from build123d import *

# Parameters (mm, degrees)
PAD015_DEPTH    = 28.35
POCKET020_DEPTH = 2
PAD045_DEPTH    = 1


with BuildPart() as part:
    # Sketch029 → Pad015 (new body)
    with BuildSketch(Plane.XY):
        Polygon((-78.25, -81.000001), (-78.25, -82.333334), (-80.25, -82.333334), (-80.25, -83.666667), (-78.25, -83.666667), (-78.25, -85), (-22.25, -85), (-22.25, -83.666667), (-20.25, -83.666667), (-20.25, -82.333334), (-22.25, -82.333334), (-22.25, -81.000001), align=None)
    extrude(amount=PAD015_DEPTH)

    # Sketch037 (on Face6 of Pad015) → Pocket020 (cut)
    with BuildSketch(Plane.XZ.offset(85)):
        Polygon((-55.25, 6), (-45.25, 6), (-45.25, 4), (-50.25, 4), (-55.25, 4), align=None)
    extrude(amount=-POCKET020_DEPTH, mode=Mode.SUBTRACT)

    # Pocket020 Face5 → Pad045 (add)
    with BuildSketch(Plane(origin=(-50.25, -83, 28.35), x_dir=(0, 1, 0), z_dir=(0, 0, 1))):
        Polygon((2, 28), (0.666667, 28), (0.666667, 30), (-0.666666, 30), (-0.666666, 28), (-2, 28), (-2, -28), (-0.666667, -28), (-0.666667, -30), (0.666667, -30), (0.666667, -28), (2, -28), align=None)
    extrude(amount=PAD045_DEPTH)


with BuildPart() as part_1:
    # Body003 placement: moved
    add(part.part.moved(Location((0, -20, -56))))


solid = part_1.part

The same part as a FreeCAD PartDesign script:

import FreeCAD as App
import Part
import Sketcher

V = App.Vector
Q = App.Units.Quantity

doc = App.newDocument("Part")
body = doc.addObject("PartDesign::Body", "Body")

# Sketch on XY plane
sketch1 = body.newObject("Sketcher::SketchObject", "Sketch")
sketch1.AttachmentSupport = (doc.getObject("XY_Plane"), [""])
sketch1.MapMode = "FlatFace"
sketch1.addGeometry(Part.LineSegment(V(-78.25, -81.000001, 0), V(-78.25, -82.333334, 0)), False)
sketch1.addGeometry(Part.LineSegment(V(-78.25, -82.333334, 0), V(-80.25, -82.333334, 0)), False)
sketch1.addGeometry(Part.LineSegment(V(-80.25, -82.333334, 0), V(-80.25, -83.666667, 0)), False)
sketch1.addGeometry(Part.LineSegment(V(-80.25, -83.666667, 0), V(-78.25, -83.666667, 0)), False)
sketch1.addGeometry(Part.LineSegment(V(-78.25, -83.666667, 0), V(-78.25, -85, 0)), False)
sketch1.addGeometry(Part.LineSegment(V(-78.25, -85, 0), V(-22.25, -85, 0)), False)
sketch1.addGeometry(Part.LineSegment(V(-22.25, -85, 0), V(-22.25, -83.666667, 0)), False)
sketch1.addGeometry(Part.LineSegment(V(-22.25, -83.666667, 0), V(-20.25, -83.666667, 0)), False)
sketch1.addGeometry(Part.LineSegment(V(-20.25, -83.666667, 0), V(-20.25, -82.333334, 0)), False)
sketch1.addGeometry(Part.LineSegment(V(-20.25, -82.333334, 0), V(-22.25, -82.333334, 0)), False)
sketch1.addGeometry(Part.LineSegment(V(-22.25, -82.333334, 0), V(-22.25, -81.000001, 0)), False)
sketch1.addGeometry(Part.LineSegment(V(-22.25, -81.000001, 0), V(-78.25, -81.000001, 0)), False)
sketch1.addConstraint(Sketcher.Constraint("Coincident", 0, 2, 1, 1))
sketch1.addConstraint(Sketcher.Constraint("Coincident", 1, 2, 2, 1))
sketch1.addConstraint(Sketcher.Constraint("Coincident", 2, 2, 3, 1))
sketch1.addConstraint(Sketcher.Constraint("Coincident", 3, 2, 4, 1))
sketch1.addConstraint(Sketcher.Constraint("Coincident", 4, 2, 5, 1))
sketch1.addConstraint(Sketcher.Constraint("Coincident", 5, 2, 6, 1))
sketch1.addConstraint(Sketcher.Constraint("Coincident", 6, 2, 7, 1))
sketch1.addConstraint(Sketcher.Constraint("Coincident", 7, 2, 8, 1))
sketch1.addConstraint(Sketcher.Constraint("Coincident", 8, 2, 9, 1))
sketch1.addConstraint(Sketcher.Constraint("Coincident", 9, 2, 10, 1))
sketch1.addConstraint(Sketcher.Constraint("Coincident", 10, 2, 11, 1))
sketch1.addConstraint(Sketcher.Constraint("Coincident", 11, 2, 0, 1))
sketch1.addConstraint(Sketcher.Constraint("Vertical", 0))
sketch1.addConstraint(Sketcher.Constraint("Horizontal", 1))
sketch1.addConstraint(Sketcher.Constraint("Vertical", 2))
sketch1.addConstraint(Sketcher.Constraint("Horizontal", 3))
sketch1.addConstraint(Sketcher.Constraint("Vertical", 4))
sketch1.addConstraint(Sketcher.Constraint("Horizontal", 5))
sketch1.addConstraint(Sketcher.Constraint("Vertical", 6))
sketch1.addConstraint(Sketcher.Constraint("Horizontal", 7))
sketch1.addConstraint(Sketcher.Constraint("Vertical", 8))
sketch1.addConstraint(Sketcher.Constraint("Horizontal", 9))
sketch1.addConstraint(Sketcher.Constraint("Vertical", 10))
sketch1.addConstraint(Sketcher.Constraint("Horizontal", 11))
sketch1.addConstraint(Sketcher.Constraint("Horizontal", 3, 2, 6, 2))
sketch1.addConstraint(Sketcher.Constraint("Horizontal", 1, 2, 8, 2))
sketch1.addConstraint(Sketcher.Constraint("Vertical", 0, 2, 3, 2))
sketch1.addConstraint(Sketcher.Constraint("Vertical", 6, 2, 9, 2))
sketch1.addConstraint(Sketcher.Constraint("Equal", 3, 7))
sketch1.addConstraint(Sketcher.Constraint("Equal", 0, 2))
sketch1.addConstraint(Sketcher.Constraint("Equal", 2, 4))
sketch1.addConstraint(Sketcher.Constraint("DistanceX", 1, 2, 1, 1, Q("2 mm")))
sketch1.addConstraint(Sketcher.Constraint("DistanceX", 5, 1, 5, 2, Q("56 mm")))
sketch1.addConstraint(Sketcher.Constraint("DistanceY", 4, 2, -1, 1, Q("85 mm")))
sketch1.addConstraint(Sketcher.Constraint("DistanceY", 10, 2, -1, 1, Q("81.000001 mm")))
sketch1.addConstraint(Sketcher.Constraint("DistanceX", 0, 2, -1, 1, Q("78.25 mm")))
pad1 = body.newObject("PartDesign::Pad", "Pad")
pad1.Profile = sketch1
pad1.Length = 28.35

# Sketch on XZ plane
sketch2 = body.newObject("Sketcher::SketchObject", "Sketch001")
sketch2.AttachmentSupport = (doc.getObject("XZ_Plane"), [""])
sketch2.MapMode = "FlatFace"
sketch2.AttachmentOffset = App.Placement(V(0, 0, 85), App.Rotation())
sketch2.addGeometry(Part.LineSegment(V(-45.25, 6, 0), V(-55.25, 6, 0)), False)
sketch2.addGeometry(Part.LineSegment(V(-55.25, 6, 0), V(-55.25, 4, 0)), False)
sketch2.addGeometry(Part.LineSegment(V(-55.25, 4, 0), V(-45.25, 4, 0)), False)
sketch2.addGeometry(Part.LineSegment(V(-45.25, 4, 0), V(-45.25, 6, 0)), False)
sketch2.addConstraint(Sketcher.Constraint("Coincident", 0, 2, 1, 1))
sketch2.addConstraint(Sketcher.Constraint("Coincident", 1, 2, 2, 1))
sketch2.addConstraint(Sketcher.Constraint("Coincident", 2, 2, 3, 1))
sketch2.addConstraint(Sketcher.Constraint("Coincident", 3, 2, 0, 1))
sketch2.addConstraint(Sketcher.Constraint("Horizontal", 0))
sketch2.addConstraint(Sketcher.Constraint("Vertical", 1))
sketch2.addConstraint(Sketcher.Constraint("Horizontal", 2))
sketch2.addConstraint(Sketcher.Constraint("Vertical", 3))
sketch2.addConstraint(Sketcher.Constraint("DistanceX", 0, 2, 0, 1, Q("10 mm")))
sketch2.addConstraint(Sketcher.Constraint("DistanceY", 1, 2, 1, 1, Q("2 mm")))
sketch2.addConstraint(Sketcher.Constraint("DistanceY", -1, 1, 0, 2, Q("6 mm")))
sketch2.addConstraint(Sketcher.Constraint("DistanceX", 0, 2, -1, 1, Q("55.25 mm")))
pocket1 = body.newObject("PartDesign::Pocket", "Pocket")
pocket1.Profile = sketch2
pocket1.Length = 2

# Sketch on XY plane
sketch3 = body.newObject("Sketcher::SketchObject", "Sketch002")
sketch3.AttachmentSupport = (doc.getObject("XY_Plane"), [""])
sketch3.MapMode = "FlatFace"
sketch3.AttachmentOffset = App.Placement(V(0, 0, 28.35), App.Rotation())
sketch3.addGeometry(Part.LineSegment(V(-78.25, -81, 0), V(-78.25, -82.333333, 0)), False)
sketch3.addGeometry(Part.LineSegment(V(-78.25, -82.333333, 0), V(-80.25, -82.333333, 0)), False)
sketch3.addGeometry(Part.LineSegment(V(-80.25, -82.333333, 0), V(-80.25, -83.666666, 0)), False)
sketch3.addGeometry(Part.LineSegment(V(-80.25, -83.666666, 0), V(-78.25, -83.666666, 0)), False)
sketch3.addGeometry(Part.LineSegment(V(-78.25, -83.666666, 0), V(-78.25, -85, 0)), False)
sketch3.addGeometry(Part.LineSegment(V(-78.25, -85, 0), V(-22.25, -85, 0)), False)
sketch3.addGeometry(Part.LineSegment(V(-22.25, -85, 0), V(-22.25, -83.666667, 0)), False)
sketch3.addGeometry(Part.LineSegment(V(-22.25, -83.666667, 0), V(-20.25, -83.666667, 0)), False)
sketch3.addGeometry(Part.LineSegment(V(-20.25, -83.666667, 0), V(-20.25, -82.333333, 0)), False)
sketch3.addGeometry(Part.LineSegment(V(-20.25, -82.333333, 0), V(-22.25, -82.333333, 0)), False)
sketch3.addGeometry(Part.LineSegment(V(-22.25, -82.333333, 0), V(-22.25, -81, 0)), False)
sketch3.addGeometry(Part.LineSegment(V(-22.25, -81, 0), V(-78.25, -81, 0)), False)
sketch3.addConstraint(Sketcher.Constraint("Coincident", 0, 2, 1, 1))
sketch3.addConstraint(Sketcher.Constraint("Coincident", 1, 2, 2, 1))
sketch3.addConstraint(Sketcher.Constraint("Coincident", 2, 2, 3, 1))
sketch3.addConstraint(Sketcher.Constraint("Coincident", 3, 2, 4, 1))
sketch3.addConstraint(Sketcher.Constraint("Coincident", 4, 2, 5, 1))
sketch3.addConstraint(Sketcher.Constraint("Coincident", 5, 2, 6, 1))
sketch3.addConstraint(Sketcher.Constraint("Coincident", 6, 2, 7, 1))
sketch3.addConstraint(Sketcher.Constraint("Coincident", 7, 2, 8, 1))
sketch3.addConstraint(Sketcher.Constraint("Coincident", 8, 2, 9, 1))
sketch3.addConstraint(Sketcher.Constraint("Coincident", 9, 2, 10, 1))
sketch3.addConstraint(Sketcher.Constraint("Coincident", 10, 2, 11, 1))
sketch3.addConstraint(Sketcher.Constraint("Coincident", 11, 2, 0, 1))
sketch3.addConstraint(Sketcher.Constraint("Vertical", 0))
sketch3.addConstraint(Sketcher.Constraint("Horizontal", 1))
sketch3.addConstraint(Sketcher.Constraint("Vertical", 2))
sketch3.addConstraint(Sketcher.Constraint("Horizontal", 3))
sketch3.addConstraint(Sketcher.Constraint("Vertical", 4))
sketch3.addConstraint(Sketcher.Constraint("Horizontal", 5))
sketch3.addConstraint(Sketcher.Constraint("Vertical", 6))
sketch3.addConstraint(Sketcher.Constraint("Horizontal", 7))
sketch3.addConstraint(Sketcher.Constraint("Vertical", 8))
sketch3.addConstraint(Sketcher.Constraint("Horizontal", 9))
sketch3.addConstraint(Sketcher.Constraint("Vertical", 10))
sketch3.addConstraint(Sketcher.Constraint("Horizontal", 11))
sketch3.addConstraint(Sketcher.Constraint("Horizontal", 3, 2, 6, 2))
sketch3.addConstraint(Sketcher.Constraint("Horizontal", 1, 2, 8, 2))
sketch3.addConstraint(Sketcher.Constraint("Vertical", 0, 2, 3, 2))
sketch3.addConstraint(Sketcher.Constraint("Vertical", 6, 2, 9, 2))
sketch3.addConstraint(Sketcher.Constraint("Equal", 3, 7))
sketch3.addConstraint(Sketcher.Constraint("Equal", 0, 2))
sketch3.addConstraint(Sketcher.Constraint("Equal", 2, 4))
sketch3.addConstraint(Sketcher.Constraint("DistanceX", 1, 2, 1, 1, Q("2 mm")))
sketch3.addConstraint(Sketcher.Constraint("DistanceX", 5, 1, 5, 2, Q("56 mm")))
sketch3.addConstraint(Sketcher.Constraint("DistanceY", 4, 2, -1, 1, Q("85 mm")))
sketch3.addConstraint(Sketcher.Constraint("DistanceY", 10, 2, -1, 1, Q("81 mm")))
sketch3.addConstraint(Sketcher.Constraint("DistanceX", 0, 2, -1, 1, Q("78.25 mm")))
pad2 = body.newObject("PartDesign::Pad", "Pad001")
pad2.Profile = sketch3
pad2.Length = 1
body2 = doc.addObject("PartDesign::Body", "Body001")
doc.recompute()

body.Placement = App.Placement(V(0, -20, -56), App.Rotation(V(0, 0, 1), 0))
boolean = body2.newObject("PartDesign::Boolean", "Boolean")
boolean.Type = "Fuse"
boolean.addObjects([body])

doc.recompute()
